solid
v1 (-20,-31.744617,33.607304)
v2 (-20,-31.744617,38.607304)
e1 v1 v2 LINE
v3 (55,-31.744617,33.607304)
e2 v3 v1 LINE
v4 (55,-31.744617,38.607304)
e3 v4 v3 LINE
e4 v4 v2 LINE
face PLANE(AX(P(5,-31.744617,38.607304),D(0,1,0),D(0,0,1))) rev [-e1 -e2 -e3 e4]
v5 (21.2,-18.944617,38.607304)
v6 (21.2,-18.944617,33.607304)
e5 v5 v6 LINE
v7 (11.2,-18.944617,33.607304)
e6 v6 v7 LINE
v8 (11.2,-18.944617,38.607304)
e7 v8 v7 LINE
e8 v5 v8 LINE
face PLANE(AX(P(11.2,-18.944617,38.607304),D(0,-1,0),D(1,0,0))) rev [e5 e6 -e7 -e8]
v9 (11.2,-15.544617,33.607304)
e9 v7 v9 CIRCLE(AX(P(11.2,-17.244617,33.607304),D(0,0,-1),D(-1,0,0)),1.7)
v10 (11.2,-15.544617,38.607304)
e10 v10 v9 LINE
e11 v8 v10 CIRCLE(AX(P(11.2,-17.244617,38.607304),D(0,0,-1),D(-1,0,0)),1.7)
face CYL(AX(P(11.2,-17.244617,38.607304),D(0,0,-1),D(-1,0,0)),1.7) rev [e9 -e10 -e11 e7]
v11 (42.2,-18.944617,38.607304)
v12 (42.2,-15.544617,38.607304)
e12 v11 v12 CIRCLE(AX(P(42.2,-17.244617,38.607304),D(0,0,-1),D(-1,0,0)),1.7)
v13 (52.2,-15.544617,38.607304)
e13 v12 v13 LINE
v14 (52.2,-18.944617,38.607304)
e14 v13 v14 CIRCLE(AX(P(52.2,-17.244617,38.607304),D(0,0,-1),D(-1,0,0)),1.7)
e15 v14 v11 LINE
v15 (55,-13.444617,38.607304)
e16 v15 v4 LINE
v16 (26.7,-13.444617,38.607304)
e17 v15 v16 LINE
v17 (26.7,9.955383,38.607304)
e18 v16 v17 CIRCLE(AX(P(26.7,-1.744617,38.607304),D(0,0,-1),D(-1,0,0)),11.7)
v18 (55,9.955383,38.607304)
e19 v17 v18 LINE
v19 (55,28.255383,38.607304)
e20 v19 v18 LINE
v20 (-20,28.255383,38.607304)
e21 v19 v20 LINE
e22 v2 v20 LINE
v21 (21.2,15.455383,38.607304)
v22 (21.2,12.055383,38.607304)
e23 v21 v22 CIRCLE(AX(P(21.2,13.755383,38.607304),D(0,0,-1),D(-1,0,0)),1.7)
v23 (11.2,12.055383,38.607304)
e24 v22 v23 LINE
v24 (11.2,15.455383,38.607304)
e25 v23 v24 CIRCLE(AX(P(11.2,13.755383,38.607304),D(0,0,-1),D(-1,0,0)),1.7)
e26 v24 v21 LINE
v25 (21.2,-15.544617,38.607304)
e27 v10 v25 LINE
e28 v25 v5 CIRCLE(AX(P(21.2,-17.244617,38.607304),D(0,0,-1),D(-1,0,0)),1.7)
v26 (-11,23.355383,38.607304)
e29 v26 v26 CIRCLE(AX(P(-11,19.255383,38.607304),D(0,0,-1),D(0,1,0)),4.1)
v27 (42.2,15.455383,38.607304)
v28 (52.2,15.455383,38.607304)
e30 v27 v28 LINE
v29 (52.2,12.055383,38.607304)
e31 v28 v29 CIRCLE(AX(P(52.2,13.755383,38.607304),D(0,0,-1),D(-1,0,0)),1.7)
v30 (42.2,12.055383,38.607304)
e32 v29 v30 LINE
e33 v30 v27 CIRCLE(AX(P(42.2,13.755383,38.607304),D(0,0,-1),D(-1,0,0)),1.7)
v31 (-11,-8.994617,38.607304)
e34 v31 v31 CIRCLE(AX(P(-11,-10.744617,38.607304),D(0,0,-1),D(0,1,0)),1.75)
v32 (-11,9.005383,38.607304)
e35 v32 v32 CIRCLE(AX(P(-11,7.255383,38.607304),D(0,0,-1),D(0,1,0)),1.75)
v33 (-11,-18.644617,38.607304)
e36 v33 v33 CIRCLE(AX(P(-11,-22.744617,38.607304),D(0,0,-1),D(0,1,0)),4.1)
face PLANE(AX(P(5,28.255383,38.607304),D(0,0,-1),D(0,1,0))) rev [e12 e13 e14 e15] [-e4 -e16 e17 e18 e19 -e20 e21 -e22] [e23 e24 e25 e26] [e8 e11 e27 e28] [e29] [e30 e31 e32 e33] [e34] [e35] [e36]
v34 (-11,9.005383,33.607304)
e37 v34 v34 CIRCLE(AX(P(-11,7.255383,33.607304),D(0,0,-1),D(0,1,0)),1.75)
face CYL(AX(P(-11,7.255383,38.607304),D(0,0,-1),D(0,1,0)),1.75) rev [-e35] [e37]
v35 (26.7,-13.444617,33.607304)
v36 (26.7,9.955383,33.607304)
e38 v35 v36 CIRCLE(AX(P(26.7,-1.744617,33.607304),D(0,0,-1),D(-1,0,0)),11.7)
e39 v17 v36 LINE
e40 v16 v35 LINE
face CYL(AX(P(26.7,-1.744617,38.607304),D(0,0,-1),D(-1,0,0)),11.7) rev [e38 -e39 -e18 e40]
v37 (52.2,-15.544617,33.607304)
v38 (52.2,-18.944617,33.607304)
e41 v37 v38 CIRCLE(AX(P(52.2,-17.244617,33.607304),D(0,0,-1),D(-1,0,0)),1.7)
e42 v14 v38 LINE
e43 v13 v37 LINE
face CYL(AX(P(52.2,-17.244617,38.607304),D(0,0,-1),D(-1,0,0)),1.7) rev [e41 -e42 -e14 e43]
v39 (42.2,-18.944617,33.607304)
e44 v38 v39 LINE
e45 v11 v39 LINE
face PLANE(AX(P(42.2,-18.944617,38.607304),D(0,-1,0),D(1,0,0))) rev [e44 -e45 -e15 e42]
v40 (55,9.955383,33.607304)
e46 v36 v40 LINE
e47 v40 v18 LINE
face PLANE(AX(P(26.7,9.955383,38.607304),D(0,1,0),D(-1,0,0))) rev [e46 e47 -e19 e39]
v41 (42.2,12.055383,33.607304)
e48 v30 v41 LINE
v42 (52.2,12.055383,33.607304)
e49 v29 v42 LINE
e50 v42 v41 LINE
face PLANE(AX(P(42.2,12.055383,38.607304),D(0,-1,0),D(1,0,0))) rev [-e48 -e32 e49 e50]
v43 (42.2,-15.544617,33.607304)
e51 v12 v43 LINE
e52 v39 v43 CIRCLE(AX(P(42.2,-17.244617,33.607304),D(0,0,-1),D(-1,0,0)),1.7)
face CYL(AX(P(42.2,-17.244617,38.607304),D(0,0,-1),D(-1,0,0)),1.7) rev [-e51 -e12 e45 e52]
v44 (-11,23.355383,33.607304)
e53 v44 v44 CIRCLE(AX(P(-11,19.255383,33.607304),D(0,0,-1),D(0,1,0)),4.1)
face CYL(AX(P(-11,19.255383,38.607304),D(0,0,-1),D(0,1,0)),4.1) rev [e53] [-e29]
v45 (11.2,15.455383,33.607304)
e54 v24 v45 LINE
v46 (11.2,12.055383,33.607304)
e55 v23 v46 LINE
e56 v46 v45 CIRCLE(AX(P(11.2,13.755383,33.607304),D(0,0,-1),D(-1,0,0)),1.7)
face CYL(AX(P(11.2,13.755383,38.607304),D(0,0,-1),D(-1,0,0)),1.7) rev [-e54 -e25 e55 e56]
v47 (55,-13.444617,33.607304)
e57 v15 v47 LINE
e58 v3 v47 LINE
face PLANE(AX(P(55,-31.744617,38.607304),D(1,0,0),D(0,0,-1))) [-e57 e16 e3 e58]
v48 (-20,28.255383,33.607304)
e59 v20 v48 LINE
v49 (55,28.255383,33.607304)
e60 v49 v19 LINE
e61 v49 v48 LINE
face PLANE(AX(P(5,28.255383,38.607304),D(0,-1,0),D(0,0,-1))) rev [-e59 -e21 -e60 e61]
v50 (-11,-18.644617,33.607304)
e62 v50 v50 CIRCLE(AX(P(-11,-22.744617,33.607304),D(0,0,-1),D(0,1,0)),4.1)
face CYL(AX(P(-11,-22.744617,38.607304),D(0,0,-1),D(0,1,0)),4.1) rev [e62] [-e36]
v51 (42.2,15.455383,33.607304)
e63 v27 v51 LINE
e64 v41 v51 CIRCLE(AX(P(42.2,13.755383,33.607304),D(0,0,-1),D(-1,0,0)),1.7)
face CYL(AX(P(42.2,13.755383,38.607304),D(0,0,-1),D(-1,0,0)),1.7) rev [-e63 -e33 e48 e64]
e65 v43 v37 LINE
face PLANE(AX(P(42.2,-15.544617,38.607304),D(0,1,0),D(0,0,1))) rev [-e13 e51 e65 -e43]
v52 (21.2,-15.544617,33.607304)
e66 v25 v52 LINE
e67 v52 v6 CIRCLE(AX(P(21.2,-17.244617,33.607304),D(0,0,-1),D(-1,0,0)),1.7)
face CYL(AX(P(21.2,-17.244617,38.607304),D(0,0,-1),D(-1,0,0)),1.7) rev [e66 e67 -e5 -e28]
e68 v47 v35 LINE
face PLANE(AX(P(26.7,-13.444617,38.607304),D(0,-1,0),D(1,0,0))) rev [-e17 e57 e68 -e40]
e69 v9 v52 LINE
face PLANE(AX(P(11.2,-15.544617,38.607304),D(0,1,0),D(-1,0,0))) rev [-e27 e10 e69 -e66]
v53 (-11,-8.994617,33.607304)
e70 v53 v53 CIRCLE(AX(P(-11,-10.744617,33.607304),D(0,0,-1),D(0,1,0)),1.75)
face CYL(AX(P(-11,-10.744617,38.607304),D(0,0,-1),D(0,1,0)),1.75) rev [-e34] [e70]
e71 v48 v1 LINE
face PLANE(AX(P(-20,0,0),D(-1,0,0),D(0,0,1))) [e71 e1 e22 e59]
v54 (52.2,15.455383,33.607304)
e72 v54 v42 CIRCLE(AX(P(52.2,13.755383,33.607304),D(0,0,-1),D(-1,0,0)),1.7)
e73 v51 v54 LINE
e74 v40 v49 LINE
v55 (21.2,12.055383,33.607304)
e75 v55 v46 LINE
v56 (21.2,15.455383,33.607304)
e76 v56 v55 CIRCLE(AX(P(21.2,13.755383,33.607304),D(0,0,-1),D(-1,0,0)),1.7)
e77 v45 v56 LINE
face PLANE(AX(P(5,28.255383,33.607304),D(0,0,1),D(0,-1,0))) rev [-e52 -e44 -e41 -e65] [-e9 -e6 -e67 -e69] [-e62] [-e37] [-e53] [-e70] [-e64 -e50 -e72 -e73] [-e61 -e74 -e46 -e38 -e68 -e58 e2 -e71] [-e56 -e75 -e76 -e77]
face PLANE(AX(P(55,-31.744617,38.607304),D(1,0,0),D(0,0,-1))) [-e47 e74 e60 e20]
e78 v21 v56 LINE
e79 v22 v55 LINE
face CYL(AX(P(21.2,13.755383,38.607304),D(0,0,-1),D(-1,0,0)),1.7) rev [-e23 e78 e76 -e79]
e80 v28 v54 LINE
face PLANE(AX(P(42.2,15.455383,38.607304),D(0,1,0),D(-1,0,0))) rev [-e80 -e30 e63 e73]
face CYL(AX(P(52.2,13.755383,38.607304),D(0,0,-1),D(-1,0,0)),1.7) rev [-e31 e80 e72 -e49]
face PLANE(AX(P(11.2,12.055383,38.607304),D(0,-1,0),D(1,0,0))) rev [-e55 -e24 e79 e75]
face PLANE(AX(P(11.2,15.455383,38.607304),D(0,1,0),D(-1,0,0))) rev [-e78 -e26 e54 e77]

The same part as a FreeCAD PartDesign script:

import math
import FreeCAD as App
import Part
import Sketcher

V = App.Vector

doc = App.newDocument("Part")
body = doc.addObject("PartDesign::Body", "Body")

# Sketch on YZ plane
sketch1 = body.newObject("Sketcher::SketchObject", "Sketch")
sketch1.AttachmentSupport = (doc.getObject("YZ_Plane"), [""])
sketch1.MapMode = "FlatFace"
sketch1.addGeometry(Part.LineSegment(V(28, 39, 0), V(-32, 39, 0)), False)
sketch1.addGeometry(Part.LineSegment(V(-32, 39, 0), V(-32, 34, 0)), False)
sketch1.addGeometry(Part.LineSegment(V(-32, 34, 0), V(28, 34, 0)), False)
sketch1.addGeometry(Part.LineSegment(V(28, 34, 0), V(28, 39, 0)), False)
sketch1.addConstraint(Sketcher.Constraint("Coincident", 0, 2, 1, 1))
sketch1.addConstraint(Sketcher.Constraint("Coincident", 1, 2, 2, 1))
sketch1.addConstraint(Sketcher.Constraint("Coincident", 2, 2, 3, 1))
sketch1.addConstraint(Sketcher.Constraint("Coincident", 3, 2, 0, 1))
sketch1.addConstraint(Sketcher.Constraint("Horizontal", 0))
sketch1.addConstraint(Sketcher.Constraint("Vertical", 1))
sketch1.addConstraint(Sketcher.Constraint("Horizontal", 2))
sketch1.addConstraint(Sketcher.Constraint("Vertical", 3))
sketch1.addConstraint(Sketcher.Constraint("DistanceX", 0, 2, 0, 1, 60.0))
sketch1.addConstraint(Sketcher.Constraint("DistanceY", 1, 2, 1, 1, 5.0))
sketch1.addConstraint(Sketcher.Constraint("DistanceX", 0, 2, -1, 1, 31.744617))
sketch1.addConstraint(Sketcher.Constraint("DistanceY", -1, 1, 0, 2, 38.607304))
pad1 = body.newObject("PartDesign::Pad", "Pad")
pad1.Profile = sketch1
pad1.Length = 5

# Sketch on YZ plane
sketch2 = body.newObject("Sketcher::SketchObject", "Sketch001")
sketch2.AttachmentSupport = (doc.getObject("YZ_Plane"), [""])
sketch2.MapMode = "FlatFace"
sketch2.AttachmentOffset = App.Placement(V(0, 0, 5), App.Rotation())
sketch2.addGeometry(Part.LineSegment(V(28, 39, 0), V(-32, 39, 0)), False)
sketch2.addGeometry(Part.LineSegment(V(-32, 39, 0), V(-32, 34, 0)), False)
sketch2.addGeometry(Part.LineSegment(V(-32, 34, 0), V(28, 34, 0)), False)
sketch2.addGeometry(Part.LineSegment(V(28, 34, 0), V(28, 39, 0)), False)
sketch2.addConstraint(Sketcher.Constraint("Coincident", 0, 2, 1, 1))
sketch2.addConstraint(Sketcher.Constraint("Coincident", 1, 2, 2, 1))
sketch2.addConstraint(Sketcher.Constraint("Coincident", 2, 2, 3, 1))
sketch2.addConstraint(Sketcher.Constraint("Coincident", 3, 2, 0, 1))
sketch2.addConstraint(Sketcher.Constraint("Horizontal", 0))
sketch2.addConstraint(Sketcher.Constraint("Vertical", 1))
sketch2.addConstraint(Sketcher.Constraint("Horizontal", 2))
sketch2.addConstraint(Sketcher.Constraint("Vertical", 3))
sketch2.addConstraint(Sketcher.Constraint("DistanceX", 0, 2, 0, 1, 60.0))
sketch2.addConstraint(Sketcher.Constraint("DistanceY", 1, 2, 1, 1, 5.0))
sketch2.addConstraint(Sketcher.Constraint("DistanceX", 0, 2, -1, 1, 31.744617))
sketch2.addConstraint(Sketcher.Constraint("DistanceY", -1, 1, 0, 2, 38.607304))
pad2 = body.newObject("PartDesign::Pad", "Pad001")
pad2.Profile = sketch2
pad2.Length = 50

# Sketch on XY plane
sketch3 = body.newObject("Sketcher::SketchObject", "Sketch002")
sketch3.AttachmentSupport = (doc.getObject("XY_Plane"), [""])
sketch3.MapMode = "FlatFace"
sketch3.AttachmentOffset = App.Placement(V(0, 0, 33.607304), App.Rotation())
sketch3.addGeometry(Part.LineSegment(V(57, -13, 0), V(27, -13, 0)), False)
sketch3.addGeometry(Part.ArcOfCircle(Part.Circle(V(27, -2, 0), V(0, 0, 1), 12), math.radians(90), math.radians(270)), False)
sketch3.addGeometry(Part.LineSegment(V(27, 10, 0), V(57, 10, 0)), False)
sketch3.addGeometry(Part.ArcOfCircle(Part.Circle(V(57, -2, 0), V(0, 0, 1), 12), math.radians(-90), math.radians(90)), False)
sketch3.addConstraint(Sketcher.Constraint("Tangent", 0, 2, 1, 2))
sketch3.addConstraint(Sketcher.Constraint("Tangent", 1, 1, 2, 1))
sketch3.addConstraint(Sketcher.Constraint("Tangent", 2, 2, 3, 2))
sketch3.addConstraint(Sketcher.Constraint("Tangent", 3, 1, 0, 1))
sketch3.addConstraint(Sketcher.Constraint("Horizontal", 0))
sketch3.addConstraint(Sketcher.Constraint("Horizontal", 2))
sketch3.addConstraint(Sketcher.Constraint("Radius", 1, 11.7))
sketch3.addConstraint(Sketcher.Constraint("DistanceX", 0, 2, 0, 1, 30.0))
sketch3.addConstraint(Sketcher.Constraint("DistanceX", -1, 1, 1, 3, 26.7))
sketch3.addConstraint(Sketcher.Constraint("DistanceY", 1, 3, -1, 1, 1.744617))
pocket1 = body.newObject("PartDesign::Pocket", "Pocket")
pocket1.Profile = sketch3
pocket1.Type = "ThroughAll"
pocket1.Reversed = True

# Sketch on XY plane
sketch4 = body.newObject("Sketcher::SketchObject", "Sketch003")
sketch4.AttachmentSupport = (doc.getObject("XY_Plane"), [""])
sketch4.MapMode = "FlatFace"
sketch4.AttachmentOffset = App.Placement(V(0, 0, 33.607304), App.Rotation())
sketch4.addGeometry(Part.LineSegment(V(52.2, 12.1, 0), V(42.2, 12.1, 0)), False)
sketch4.addGeometry(Part.ArcOfCircle(Part.Circle(V(42.2, 13.8, 0), V(0, 0, 1), 1.7), math.radians(90), math.radians(270)), False)
sketch4.addGeometry(Part.LineSegment(V(42.2, 15.5, 0), V(52.2, 15.5, 0)), False)
sketch4.addGeometry(Part.ArcOfCircle(Part.Circle(V(52.2, 13.8, 0), V(0, 0, 1), 1.7), math.radians(-90), math.radians(90)), False)
sketch4.addGeometry(Part.LineSegment(V(52.2, -18.9, 0), V(42.2, -18.9, 0)), False)
sketch4.addGeometry(Part.ArcOfCircle(Part.Circle(V(42.2, -17.2, 0), V(0, 0, 1), 1.7), math.radians(90), math.radians(270)), False)
sketch4.addGeometry(Part.LineSegment(V(42.2, -15.5, 0), V(52.2, -15.5, 0)), False)
sketch4.addGeometry(Part.ArcOfCircle(Part.Circle(V(52.2, -17.2, 0), V(0, 0, 1), 1.7), math.radians(-90), math.radians(90)), False)
sketch4.addGeometry(Part.LineSegment(V(21.2, -18.9, 0), V(11.2, -18.9, 0)), False)
sketch4.addGeometry(Part.ArcOfCircle(Part.Circle(V(11.2, -17.2, 0), V(0, 0, 1), 1.7), math.radians(90), math.radians(270)), False)
sketch4.addGeometry(Part.LineSegment(V(11.2, -15.5, 0), V(21.2, -15.5, 0)), False)
sketch4.addGeometry(Part.ArcOfCircle(Part.Circle(V(21.2, -17.2, 0), V(0, 0, 1), 1.7), math.radians(-90), math.radians(90)), False)
sketch4.addGeometry(Part.LineSegment(V(21.2, 12.1, 0), V(11.2, 12.1, 0)), False)
sketch4.addGeometry(Part.ArcOfCircle(Part.Circle(V(11.2, 13.8, 0), V(0, 0, 1), 1.7), math.radians(90), math.radians(270)), False)
sketch4.addGeometry(Part.LineSegment(V(11.2, 15.5, 0), V(21.2, 15.5, 0)), False)
sketch4.addGeometry(Part.ArcOfCircle(Part.Circle(V(21.2, 13.8, 0), V(0, 0, 1), 1.7), math.radians(-90), math.radians(90)), False)
sketch4.addConstraint(Sketcher.Constraint("Tangent", 0, 2, 1, 2))
sketch4.addConstraint(Sketcher.Constraint("Tangent", 1, 1, 2, 1))
sketch4.addConstraint(Sketcher.Constraint("Tangent", 2, 2, 3, 2))
sketch4.addConstraint(Sketcher.Constraint("Tangent", 3, 1, 0, 1))
sketch4.addConstraint(Sketcher.Constraint("Tangent", 4, 2, 5, 2))
sketch4.addConstraint(Sketcher.Constraint("Tangent", 5, 1, 6, 1))
sketch4.addConstraint(Sketcher.Constraint("Tangent", 6, 2, 7, 2))
sketch4.addConstraint(Sketcher.Constraint("Tangent", 7, 1, 4, 1))
sketch4.addConstraint(Sketcher.Constraint("Tangent", 8, 2, 9, 2))
sketch4.addConstraint(Sketcher.Constraint("Tangent", 9, 1, 10, 1))
sketch4.addConstraint(Sketcher.Constraint("Tangent", 10, 2, 11, 2))
sketch4.addConstraint(Sketcher.Constraint("Tangent", 11, 1, 8, 1))
sketch4.addConstraint(Sketcher.Constraint("Tangent", 12, 2, 13, 2))
sketch4.addConstraint(Sketcher.Constraint("Tangent", 13, 1, 14, 1))
sketch4.addConstraint(Sketcher.Constraint("Tangent", 14, 2, 15, 2))
sketch4.addConstraint(Sketcher.Constraint("Tangent", 15, 1, 12, 1))
sketch4.addConstraint(Sketcher.Constraint("Horizontal", 0))
sketch4.addConstraint(Sketcher.Constraint("Horizontal", 2))
sketch4.addConstraint(Sketcher.Constraint("Horizontal", 4))
sketch4.addConstraint(Sketcher.Constraint("Horizontal", 6))
sketch4.addConstraint(Sketcher.Constraint("Horizontal", 8))
sketch4.addConstraint(Sketcher.Constraint("Horizontal", 10))
sketch4.addConstraint(Sketcher.Constraint("Horizontal", 12))
sketch4.addConstraint(Sketcher.Constraint("Horizontal", 14))
sketch4.addConstraint(Sketcher.Constraint("Equal", 3, 5))
sketch4.addConstraint(Sketcher.Constraint("Equal", 7, 9))
sketch4.addConstraint(Sketcher.Constraint("Equal", 11, 13))
sketch4.addConstraint(Sketcher.Constraint("Horizontal", 7, 3, 9, 3))
sketch4.addConstraint(Sketcher.Constraint("Horizontal", 3, 3, 13, 3))
sketch4.addConstraint(Sketcher.Constraint("Vertical", 1, 3, 5, 3))
sketch4.addConstraint(Sketcher.Constraint("Vertical", 3, 3, 7, 3))
sketch4.addConstraint(Sketcher.Constraint("Vertical", 9, 3, 13, 3))
sketch4.addConstraint(Sketcher.Constraint("Vertical", 11, 3, 15, 3))
sketch4.addConstraint(Sketcher.Constraint("Equal", 6, 8))
sketch4.addConstraint(Sketcher.Constraint("Radius", 1, 1.7))
sketch4.addConstraint(Sketcher.Constraint("DistanceX", 0, 2, 0, 1, 10.0))
sketch4.addConstraint(Sketcher.Constraint("DistanceY", 5, 3, 1, 3, 31.0))
sketch4.addConstraint(Sketcher.Constraint("DistanceX", 9, 3, 5, 3, 31.0))
sketch4.addConstraint(Sketcher.Constraint("DistanceX", -1, 1, 1, 3, 42.2))
sketch4.addConstraint(Sketcher.Constraint("DistanceY", -1, 1, 1, 3, 13.755383))
pocket2 = body.newObject("PartDesign::Pocket", "Pocket001")
pocket2.Profile = sketch4
pocket2.Type = "ThroughAll"
pocket2.Reversed = True

# Sketch on YZ plane
sketch5 = body.newObject("Sketcher::SketchObject", "Sketch004")
sketch5.AttachmentSupport = (doc.getObject("YZ_Plane"), [""])
sketch5.MapMode = "FlatFace"
sketch5.addGeometry(Part.LineSegment(V(28, 34, 0), V(-32, 34, 0)), False)
sketch5.addGeometry(Part.LineSegment(V(-32, 34, 0), V(-32, 39, 0)), False)
sketch5.addGeometry(Part.LineSegment(V(-32, 39, 0), V(28, 39, 0)), False)
sketch5.addGeometry(Part.LineSegment(V(28, 39, 0), V(28, 34, 0)), False)
sketch5.addConstraint(Sketcher.Constraint("Coincident", 0, 2, 1, 1))
sketch5.addConstraint(Sketcher.Constraint("Coincident", 1, 2, 2, 1))
sketch5.addConstraint(Sketcher.Constraint("Coincident", 2, 2, 3, 1))
sketch5.addConstraint(Sketcher.Constraint("Coincident", 3, 2, 0, 1))
sketch5.addConstraint(Sketcher.Constraint("Horizontal", 0))
sketch5.addConstraint(Sketcher.Constraint("Vertical", 1))
sketch5.addConstraint(Sketcher.Constraint("Horizontal", 2))
sketch5.addConstraint(Sketcher.Constraint("Vertical", 3))
sketch5.addConstraint(Sketcher.Constraint("DistanceX", 0, 2, 0, 1, 60.0))
sketch5.addConstraint(Sketcher.Constraint("DistanceY", 1, 1, 1, 2, 5.0))
sketch5.addConstraint(Sketcher.Constraint("DistanceX", 0, 2, -1, 1, 31.744617))
sketch5.addConstraint(Sketcher.Constraint("DistanceY", -1, 1, 0, 2, 33.607304))
pad3 = body.newObject("PartDesign::Pad", "Pad002")
pad3.Profile = sketch5
pad3.Length = 20
pad3.Reversed = True

# Sketch on XY plane
sketch6 = body.newObject("Sketcher::SketchObject", "Sketch005")
sketch6.AttachmentSupport = (doc.getObject("XY_Plane"), [""])
sketch6.MapMode = "FlatFace"
sketch6.AttachmentOffset = App.Placement(V(0, 0, 33.607304), App.Rotation())
sketch6.addGeometry(Part.Circle(V(-11, 19.3, 0), V(0, 0, 1), 4.1), False)
sketch6.addGeometry(Part.Circle(V(-11, -22.7, 0), V(0, 0, 1), 4.1), False)
sketch6.addGeometry(Part.Circle(V(-11, -10.7, 0), V(0, 0, 1), 1.8), False)
sketch6.addGeometry(Part.Circle(V(-11, 7.3, 0), V(0, 0, 1), 1.8), False)
sketch6.addConstraint(Sketcher.Constraint("Equal", 0, 1))
sketch6.addConstraint(Sketcher.Constraint("Equal", 2, 3))
sketch6.addConstraint(Sketcher.Constraint("Vertical", 0, 3, 1, 3))
sketch6.addConstraint(Sketcher.Constraint("Vertical", 1, 3, 2, 3))
sketch6.addConstraint(Sketcher.Constraint("Vertical", 2, 3, 3, 3))
sketch6.addConstraint(Sketcher.Constraint("Diameter", 0, 8.2))
sketch6.addConstraint(Sketcher.Constraint("Diameter", 2, 3.5))
sketch6.addConstraint(Sketcher.Constraint("DistanceX", 0, 3, -1, 1, 11.0))
sketch6.addConstraint(Sketcher.Constraint("DistanceY", 1, 3, 0, 3, 42.0))
sketch6.addConstraint(Sketcher.Constraint("DistanceY", 1, 3, 2, 3, 12.0))
sketch6.addConstraint(Sketcher.Constraint("DistanceY", 3, 3, 0, 3, 12.0))
sketch6.addConstraint(Sketcher.Constraint("DistanceY", -1, 1, 0, 3, 19.255383))
pocket3 = body.newObject("PartDesign::Pocket", "Pocket002")
pocket3.Profile = sketch6
pocket3.Type = "ThroughAll"
pocket3.Reversed = True

doc.recompute()
